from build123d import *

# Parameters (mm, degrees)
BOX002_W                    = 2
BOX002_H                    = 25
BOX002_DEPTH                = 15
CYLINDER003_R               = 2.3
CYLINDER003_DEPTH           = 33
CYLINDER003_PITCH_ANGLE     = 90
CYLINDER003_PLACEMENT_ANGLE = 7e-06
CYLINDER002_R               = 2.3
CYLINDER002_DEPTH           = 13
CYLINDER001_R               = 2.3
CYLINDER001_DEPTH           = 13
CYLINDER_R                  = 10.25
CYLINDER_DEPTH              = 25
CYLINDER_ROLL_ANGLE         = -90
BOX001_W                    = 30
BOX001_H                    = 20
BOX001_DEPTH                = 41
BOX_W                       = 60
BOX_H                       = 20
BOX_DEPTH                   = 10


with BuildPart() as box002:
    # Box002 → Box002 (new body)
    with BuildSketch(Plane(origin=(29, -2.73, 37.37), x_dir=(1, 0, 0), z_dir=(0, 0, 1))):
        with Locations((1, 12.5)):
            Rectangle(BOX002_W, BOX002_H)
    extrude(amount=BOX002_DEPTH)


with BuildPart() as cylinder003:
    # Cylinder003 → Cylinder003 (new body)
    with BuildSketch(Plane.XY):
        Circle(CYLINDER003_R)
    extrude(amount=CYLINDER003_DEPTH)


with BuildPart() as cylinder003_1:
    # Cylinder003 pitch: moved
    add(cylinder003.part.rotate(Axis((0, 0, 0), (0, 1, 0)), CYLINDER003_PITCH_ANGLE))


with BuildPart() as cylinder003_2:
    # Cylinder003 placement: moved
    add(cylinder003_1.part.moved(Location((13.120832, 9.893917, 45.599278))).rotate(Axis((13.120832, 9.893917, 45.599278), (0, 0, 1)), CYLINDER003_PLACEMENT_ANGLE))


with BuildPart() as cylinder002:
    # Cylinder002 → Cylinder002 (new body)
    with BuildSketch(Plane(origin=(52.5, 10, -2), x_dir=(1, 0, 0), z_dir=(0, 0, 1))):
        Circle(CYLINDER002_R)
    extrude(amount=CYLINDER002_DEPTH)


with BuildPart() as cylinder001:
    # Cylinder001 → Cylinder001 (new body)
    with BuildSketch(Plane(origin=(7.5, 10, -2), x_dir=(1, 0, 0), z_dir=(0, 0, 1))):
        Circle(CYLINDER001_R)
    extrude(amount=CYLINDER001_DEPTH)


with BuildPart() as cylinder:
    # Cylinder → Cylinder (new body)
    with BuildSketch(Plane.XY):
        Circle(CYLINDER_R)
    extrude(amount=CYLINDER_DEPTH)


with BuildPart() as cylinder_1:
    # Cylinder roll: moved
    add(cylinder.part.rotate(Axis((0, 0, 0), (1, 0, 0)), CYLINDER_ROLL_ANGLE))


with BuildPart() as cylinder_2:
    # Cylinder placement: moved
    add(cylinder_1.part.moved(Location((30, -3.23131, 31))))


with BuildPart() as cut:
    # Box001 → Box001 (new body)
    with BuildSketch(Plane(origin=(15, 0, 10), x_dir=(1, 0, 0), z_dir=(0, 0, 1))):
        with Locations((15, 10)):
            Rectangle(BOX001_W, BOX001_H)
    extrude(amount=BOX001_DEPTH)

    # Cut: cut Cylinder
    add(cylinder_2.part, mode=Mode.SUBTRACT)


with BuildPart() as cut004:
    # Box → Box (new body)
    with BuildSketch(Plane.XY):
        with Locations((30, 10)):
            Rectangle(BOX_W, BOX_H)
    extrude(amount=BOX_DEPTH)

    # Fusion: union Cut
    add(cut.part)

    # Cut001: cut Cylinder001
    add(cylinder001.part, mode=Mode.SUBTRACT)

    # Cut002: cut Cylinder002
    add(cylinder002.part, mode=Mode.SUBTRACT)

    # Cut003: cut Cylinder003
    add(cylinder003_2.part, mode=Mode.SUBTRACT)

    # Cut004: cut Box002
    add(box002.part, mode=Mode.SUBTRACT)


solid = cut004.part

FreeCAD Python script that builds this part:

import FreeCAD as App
import Part
import Sketcher
Q = App.Units.Quantity


def add_polygon(sketch, points):
    """Adds a closed chain of lines whose ends are joined by coincident constraints."""
    first, n = sketch.GeometryCount, len(points)
    for a, b in zip(points, points[1:] + points[:1]):
        sketch.addGeometry(Part.LineSegment(App.Vector(*a, 0), App.Vector(*b, 0)), False)
    for i in range(n):
        sketch.addConstraint(Sketcher.Constraint("Coincident", first + i, 2, first + (i + 1) % n, 1))

doc = App.newDocument("Part")
body = doc.addObject("PartDesign::Body", "Body")

# Sketch on XY plane
sketch1 = body.newObject("Sketcher::SketchObject", "Sketch")
sketch1.AttachmentSupport = (doc.getObject("XY_Plane"), [""])
sketch1.MapMode = "FlatFace"
sketch1.AttachmentOffset = App.Placement(App.Vector(0, 0, 37.37), App.Rotation())
add_polygon(sketch1, [(29, 22.3), (29, -2.7), (31, -2.7), (31, 22.3)])  # lines 0-3
sketch1.addConstraint(Sketcher.Constraint("Vertical", 0))
sketch1.addConstraint(Sketcher.Constraint("Horizontal", 1))
sketch1.addConstraint(Sketcher.Constraint("Vertical", 2))
sketch1.addConstraint(Sketcher.Constraint("Horizontal", 3))
sketch1.addConstraint(Sketcher.Constraint("DistanceX", 1, 1, 1, 2, Q("2 mm")))
sketch1.addConstraint(Sketcher.Constraint("DistanceY", 0, 2, 0, 1, Q("25 mm")))
sketch1.addConstraint(Sketcher.Constraint("DistanceX", -1, 1, 0, 2, Q("29 mm")))
sketch1.addConstraint(Sketcher.Constraint("DistanceY", 0, 2, -1, 1, Q("2.73 mm")))
pad1 = body.newObject("PartDesign::Pad", "Pad")
pad1.Profile = sketch1
pad1.Length = 15
body2 = doc.addObject("PartDesign::Body", "Body001")

# Sketch on XY plane
sketch2 = body2.newObject("Sketcher::SketchObject", "Sketch001")
sketch2.AttachmentSupport = (doc.getObject("XY_Plane001"), [""])
sketch2.MapMode = "FlatFace"
sketch2.addGeometry(Part.Circle(App.Vector(0, 0, 0), App.Vector(0, 0, 1), 2.3), False)
sketch2.addConstraint(Sketcher.Constraint("Coincident", 0, 3, -1, 1))
sketch2.addConstraint(Sketcher.Constraint("Diameter", 0, Q("4.6 mm")))
pad2 = body2.newObject("PartDesign::Pad", "Pad001")
pad2.Profile = sketch2
pad2.Length = 33
body3 = doc.addObject("PartDesign::Body", "Body002")
doc.recompute()

body2.Placement = App.Placement(App.Vector(0, 0, 0), App.Rotation(App.Vector(0, 1, 0), 90))
boolean = body3.newObject("PartDesign::Boolean", "Boolean")
boolean.Type = "Fuse"
boolean.addObjects([body2])
body4 = doc.addObject("PartDesign::Body", "Body003")
doc.recompute()

body3.Placement = App.Placement(App.Vector(13.120832, 9.893917, 45.599278), App.Rotation(App.Vector(0, 0, 1), 0.000007))
boolean2 = body4.newObject("PartDesign::Boolean", "Boolean001")
boolean2.Type = "Fuse"
boolean2.addObjects([body3])
body5 = doc.addObject("PartDesign::Body", "Body004")

# Sketch on XY plane
sketch3 = body5.newObject("Sketcher::SketchObject", "Sketch002")
sketch3.AttachmentSupport = (doc.getObject("XY_Plane004"), [""])
sketch3.MapMode = "FlatFace"
sketch3.AttachmentOffset = App.Placement(App.Vector(0, 0, -2), App.Rotation())
sketch3.addGeometry(Part.Circle(App.Vector(52.5, 10, 0), App.Vector(0, 0, 1), 2.3), False)
sketch3.addConstraint(Sketcher.Constraint("Diameter", 0, Q("4.6 mm")))
sketch3.addConstraint(Sketcher.Constraint("DistanceY", -1, 1, 0, 3, Q("10 mm")))
sketch3.addConstraint(Sketcher.Constraint("DistanceX", -1, 1, 0, 3, Q("52.5 mm")))
pad3 = body5.newObject("PartDesign::Pad", "Pad002")
pad3.Profile = sketch3
pad3.Length = 13
body6 = doc.addObject("PartDesign::Body", "Body005")

# Sketch on XY plane
sketch4 = body6.newObject("Sketcher::SketchObject", "Sketch003")
sketch4.AttachmentSupport = (doc.getObject("XY_Plane005"), [""])
sketch4.MapMode = "FlatFace"
sketch4.AttachmentOffset = App.Placement(App.Vector(0, 0, -2), App.Rotation())
sketch4.addGeometry(Part.Circle(App.Vector(7.5, 10, 0), App.Vector(0, 0, 1), 2.3), False)
sketch4.addConstraint(Sketcher.Constraint("Diameter", 0, Q("4.6 mm")))
sketch4.addConstraint(Sketcher.Constraint("DistanceY", -1, 1, 0, 3, Q("10 mm")))
sketch4.addConstraint(Sketcher.Constraint("DistanceX", -1, 1, 0, 3, Q("7.5 mm")))
pad4 = body6.newObject("PartDesign::Pad", "Pad003")
pad4.Profile = sketch4
pad4.Length = 13
body7 = doc.addObject("PartDesign::Body", "Body006")

# Sketch on XY plane
sketch5 = body7.newObject("Sketcher::SketchObject", "Sketch004")
sketch5.AttachmentSupport = (doc.getObject("XY_Plane006"), [""])
sketch5.MapMode = "FlatFace"
sketch5.addGeometry(Part.Circle(App.Vector(0, 0, 0), App.Vector(0, 0, 1), 10), False)
sketch5.addConstraint(Sketcher.Constraint("Coincident", 0, 3, -1, 1))
sketch5.addConstraint(Sketcher.Constraint("Diameter", 0, Q("20.5 mm")))
pad5 = body7.newObject("PartDesign::Pad", "Pad004")
pad5.Profile = sketch5
pad5.Length = 25
body8 = doc.addObject("PartDesign::Body", "Body007")
doc.recompute()

body7.Placement = App.Placement(App.Vector(0, 0, 0), App.Rotation(App.Vector(1, 0, 0), 270))
boolean3 = body8.newObject("PartDesign::Boolean", "Boolean002")
boolean3.Type = "Fuse"
boolean3.addObjects([body7])
body9 = doc.addObject("PartDesign::Body", "Body008")
doc.recompute()

body8.Placement = App.Placement(App.Vector(30, -3.23131, 31), App.Rotation(App.Vector(0, 0, 1), 0))
boolean4 = body9.newObject("PartDesign::Boolean", "Boolean003")
boolean4.Type = "Fuse"
boolean4.addObjects([body8])
body10 = doc.addObject("PartDesign::Body", "Body009")

# Sketch on XY plane
sketch6 = body10.newObject("Sketcher::SketchObject", "Sketch005")
sketch6.AttachmentSupport = (doc.getObject("XY_Plane009"), [""])
sketch6.MapMode = "FlatFace"
sketch6.AttachmentOffset = App.Placement(App.Vector(0, 0, 10), App.Rotation())
add_polygon(sketch6, [(15, 20), (15, 0), (45, 0), (45, 20)])  # lines 0-3
sketch6.addConstraint(Sketcher.Constraint("Vertical", 0))
sketch6.addConstraint(Sketcher.Constraint("Horizontal", 1))
sketch6.addConstraint(Sketcher.Constraint("Vertical", 2))
sketch6.addConstraint(Sketcher.Constraint("Horizontal", 3))
sketch6.addConstraint(Sketcher.Constraint("PointOnObject", 0, 2, -1))
sketch6.addConstraint(Sketcher.Constraint("DistanceX", 1, 1, 1, 2, Q("30 mm")))
sketch6.addConstraint(Sketcher.Constraint("DistanceY", 0, 2, 0, 1, Q("20 mm")))
sketch6.addConstraint(Sketcher.Constraint("DistanceX", -1, 1, 0, 2, Q("15 mm")))
pad6 = body10.newObject("PartDesign::Pad", "Pad005")
pad6.Profile = sketch6
pad6.Length = 41
doc.recompute()

boolean5 = body10.newObject("PartDesign::Boolean", "Boolean004")
boolean5.Type = "Cut"
boolean5.addObjects([body9])
body11 = doc.addObject("PartDesign::Body", "Body010")

# Sketch on XY plane
sketch7 = body11.newObject("Sketcher::SketchObject", "Sketch006")
sketch7.AttachmentSupport = (doc.getObject("XY_Plane010"), [""])
sketch7.MapMode = "FlatFace"
add_polygon(sketch7, [(0, 20), (0, 0), (60, 0), (60, 20)])  # lines 0-3
sketch7.addConstraint(Sketcher.Constraint("Vertical", 0))
sketch7.addConstraint(Sketcher.Constraint("Horizontal", 1))
sketch7.addConstraint(Sketcher.Constraint("Vertical", 2))
sketch7.addConstraint(Sketcher.Constraint("Horizontal", 3))
sketch7.addConstraint(Sketcher.Constraint("Coincident", 0, 2, -1, 1))
sketch7.addConstraint(Sketcher.Constraint("DistanceX", 1, 1, 1, 2, Q("60 mm")))
sketch7.addConstraint(Sketcher.Constraint("DistanceY", 0, 2, 0, 1, Q("20 mm")))
pad7 = body11.newObject("PartDesign::Pad", "Pad006")
pad7.Profile = sketch7
pad7.Length = 10
doc.recompute()

boolean6 = body11.newObject("PartDesign::Boolean", "Boolean005")
boolean6.Type = "Fuse"
boolean6.addObjects([body10])
doc.recompute()

boolean7 = body11.newObject("PartDesign::Boolean", "Boolean006")
boolean7.Type = "Cut"
boolean7.addObjects([body6])
doc.recompute()

boolean8 = body11.newObject("PartDesign::Boolean", "Boolean007")
boolean8.Type = "Cut"
boolean8.addObjects([body5])
doc.recompute()

boolean9 = body11.newObject("PartDesign::Boolean", "Boolean008")
boolean9.Type = "Cut"
boolean9.addObjects([body4])
doc.recompute()

boolean10 = body11.newObject("PartDesign::Boolean", "Boolean009")
boolean10.Type = "Cut"
boolean10.addObjects([body])

doc.recompute()
